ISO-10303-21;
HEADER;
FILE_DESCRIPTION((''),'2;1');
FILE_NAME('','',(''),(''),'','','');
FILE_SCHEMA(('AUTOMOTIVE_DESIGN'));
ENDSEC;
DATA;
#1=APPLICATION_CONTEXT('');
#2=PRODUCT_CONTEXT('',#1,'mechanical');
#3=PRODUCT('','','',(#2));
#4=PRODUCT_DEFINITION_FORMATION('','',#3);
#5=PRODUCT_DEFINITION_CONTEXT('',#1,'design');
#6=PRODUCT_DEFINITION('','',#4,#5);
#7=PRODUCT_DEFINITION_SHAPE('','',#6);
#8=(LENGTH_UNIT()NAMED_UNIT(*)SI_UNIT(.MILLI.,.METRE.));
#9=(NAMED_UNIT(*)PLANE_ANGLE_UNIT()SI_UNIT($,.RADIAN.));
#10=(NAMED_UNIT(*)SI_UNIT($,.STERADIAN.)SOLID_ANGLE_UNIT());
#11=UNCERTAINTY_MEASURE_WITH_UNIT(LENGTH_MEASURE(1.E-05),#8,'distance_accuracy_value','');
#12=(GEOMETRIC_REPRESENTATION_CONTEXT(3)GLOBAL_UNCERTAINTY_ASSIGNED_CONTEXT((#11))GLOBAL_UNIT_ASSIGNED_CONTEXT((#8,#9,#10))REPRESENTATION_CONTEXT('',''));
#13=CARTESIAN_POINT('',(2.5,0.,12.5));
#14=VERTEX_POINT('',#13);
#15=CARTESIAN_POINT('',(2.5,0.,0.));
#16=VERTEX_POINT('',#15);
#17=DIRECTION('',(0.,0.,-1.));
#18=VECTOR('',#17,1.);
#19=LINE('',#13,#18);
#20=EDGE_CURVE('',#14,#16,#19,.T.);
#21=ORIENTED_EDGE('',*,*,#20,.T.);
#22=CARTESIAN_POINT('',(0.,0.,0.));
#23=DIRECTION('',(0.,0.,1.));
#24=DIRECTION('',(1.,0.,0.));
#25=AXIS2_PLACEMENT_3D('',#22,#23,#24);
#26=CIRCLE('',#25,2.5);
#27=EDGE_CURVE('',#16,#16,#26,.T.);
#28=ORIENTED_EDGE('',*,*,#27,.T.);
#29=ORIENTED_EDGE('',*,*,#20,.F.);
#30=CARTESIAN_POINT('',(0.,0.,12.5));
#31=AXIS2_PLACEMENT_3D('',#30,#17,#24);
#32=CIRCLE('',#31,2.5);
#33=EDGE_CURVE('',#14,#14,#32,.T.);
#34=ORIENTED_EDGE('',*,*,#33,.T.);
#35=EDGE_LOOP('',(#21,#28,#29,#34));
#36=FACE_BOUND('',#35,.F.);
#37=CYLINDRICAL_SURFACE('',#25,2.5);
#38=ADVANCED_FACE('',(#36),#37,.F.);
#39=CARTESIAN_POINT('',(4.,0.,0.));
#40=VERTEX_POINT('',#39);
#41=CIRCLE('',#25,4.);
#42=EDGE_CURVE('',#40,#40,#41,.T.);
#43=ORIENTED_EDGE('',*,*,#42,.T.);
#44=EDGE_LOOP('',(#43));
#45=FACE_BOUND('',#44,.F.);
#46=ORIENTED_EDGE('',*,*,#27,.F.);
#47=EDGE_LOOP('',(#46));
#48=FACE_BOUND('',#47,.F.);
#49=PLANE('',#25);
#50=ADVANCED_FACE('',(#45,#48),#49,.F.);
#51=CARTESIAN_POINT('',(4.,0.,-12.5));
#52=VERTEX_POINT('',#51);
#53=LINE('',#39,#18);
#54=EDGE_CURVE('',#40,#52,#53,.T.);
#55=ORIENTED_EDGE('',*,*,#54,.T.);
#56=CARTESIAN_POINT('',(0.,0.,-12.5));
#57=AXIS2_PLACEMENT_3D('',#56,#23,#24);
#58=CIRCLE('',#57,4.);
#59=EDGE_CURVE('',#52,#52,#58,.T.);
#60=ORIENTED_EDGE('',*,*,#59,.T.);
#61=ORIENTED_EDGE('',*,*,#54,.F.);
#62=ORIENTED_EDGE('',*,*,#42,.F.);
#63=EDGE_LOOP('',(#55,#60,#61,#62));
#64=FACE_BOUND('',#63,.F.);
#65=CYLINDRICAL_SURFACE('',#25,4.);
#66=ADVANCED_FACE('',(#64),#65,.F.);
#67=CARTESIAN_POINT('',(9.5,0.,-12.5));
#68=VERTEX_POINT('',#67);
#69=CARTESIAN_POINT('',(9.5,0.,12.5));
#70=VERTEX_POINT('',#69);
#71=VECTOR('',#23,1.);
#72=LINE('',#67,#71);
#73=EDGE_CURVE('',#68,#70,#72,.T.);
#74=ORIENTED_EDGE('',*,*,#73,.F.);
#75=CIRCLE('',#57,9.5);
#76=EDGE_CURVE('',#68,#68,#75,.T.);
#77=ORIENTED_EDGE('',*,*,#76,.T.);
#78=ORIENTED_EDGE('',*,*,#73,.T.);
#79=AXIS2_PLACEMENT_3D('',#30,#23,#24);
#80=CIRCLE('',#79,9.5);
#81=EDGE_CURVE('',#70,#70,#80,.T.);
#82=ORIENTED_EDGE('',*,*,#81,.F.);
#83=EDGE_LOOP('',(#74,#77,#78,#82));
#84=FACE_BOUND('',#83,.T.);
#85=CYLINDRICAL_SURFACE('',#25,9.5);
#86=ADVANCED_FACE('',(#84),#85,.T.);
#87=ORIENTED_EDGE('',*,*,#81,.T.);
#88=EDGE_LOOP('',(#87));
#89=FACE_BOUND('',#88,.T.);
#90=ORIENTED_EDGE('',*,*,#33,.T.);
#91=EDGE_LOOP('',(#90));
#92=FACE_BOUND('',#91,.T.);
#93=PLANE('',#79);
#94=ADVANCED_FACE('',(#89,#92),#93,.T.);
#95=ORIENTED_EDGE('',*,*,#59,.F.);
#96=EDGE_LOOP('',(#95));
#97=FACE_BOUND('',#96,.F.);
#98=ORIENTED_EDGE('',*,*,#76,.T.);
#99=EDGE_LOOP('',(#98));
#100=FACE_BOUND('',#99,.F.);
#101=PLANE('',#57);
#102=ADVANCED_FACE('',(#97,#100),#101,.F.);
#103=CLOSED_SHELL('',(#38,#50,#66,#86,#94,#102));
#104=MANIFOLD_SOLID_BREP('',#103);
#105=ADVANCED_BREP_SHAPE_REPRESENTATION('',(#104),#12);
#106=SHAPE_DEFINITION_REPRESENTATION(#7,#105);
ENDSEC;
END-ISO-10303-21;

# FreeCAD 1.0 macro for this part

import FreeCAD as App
import Part
import Sketcher
Q = App.Units.Quantity

doc = App.newDocument("Part")
body = doc.addObject("PartDesign::Body", "Body")

# Sketch on XY plane
sketch1 = doc.addObject("Sketcher::SketchObject", "Sketch")
body.addObject(sketch1)
sketch1.AttachmentSupport = (doc.XY_Plane, [""])
sketch1.MapMode = "FlatFace"
sketch1.addGeometry(Part.Circle(App.Vector(0, 0, 0), App.Vector(0, 0, 1), 10), False)
sketch1.addConstraint([
    Sketcher.Constraint("Coincident", 0, 3, -1, 1),
    Sketcher.Constraint("Diameter", 0, Q("19 mm")),
])
pad1 = doc.addObject("PartDesign::Pad", "Pad")
body.addObject(pad1)
pad1.Profile = sketch1
pad1.Length = 25
pad1.Midplane = True

# Sketch on XY plane
sketch2 = doc.addObject("Sketcher::SketchObject", "Sketch001")
body.addObject(sketch2)
sketch2.AttachmentSupport = (doc.XY_Plane, [""])
sketch2.MapMode = "FlatFace"
sketch2.addGeometry(Part.Circle(App.Vector(0, 0, 0), App.Vector(0, 0, 1), 2.5), False)
sketch2.addConstraint([
    Sketcher.Constraint("Coincident", 0, 3, -1, 1),
    Sketcher.Constraint("Diameter", 0, Q("5 mm")),
])
pocket1 = doc.addObject("PartDesign::Pocket", "Pocket")
body.addObject(pocket1)
pocket1.Profile = sketch2
pocket1.Type = "ThroughAll"
pocket1.Midplane = True

# Sketch on XY plane
sketch3 = doc.addObject("Sketcher::SketchObject", "Sketch002")
body.addObject(sketch3)
sketch3.AttachmentSupport = (doc.XY_Plane, [""])
sketch3.MapMode = "FlatFace"
sketch3.addGeometry(Part.Circle(App.Vector(0, 0, 0), App.Vector(0, 0, 1), 4), False)
sketch3.addConstraint([
    Sketcher.Constraint("Coincident", 0, 3, -1, 1),
    Sketcher.Constraint("Diameter", 0, Q("8 mm")),
])
pocket2 = doc.addObject("PartDesign::Pocket", "Pocket001")
body.addObject(pocket2)
pocket2.Profile = sketch3
pocket2.Type = "ThroughAll"

doc.recompute()
